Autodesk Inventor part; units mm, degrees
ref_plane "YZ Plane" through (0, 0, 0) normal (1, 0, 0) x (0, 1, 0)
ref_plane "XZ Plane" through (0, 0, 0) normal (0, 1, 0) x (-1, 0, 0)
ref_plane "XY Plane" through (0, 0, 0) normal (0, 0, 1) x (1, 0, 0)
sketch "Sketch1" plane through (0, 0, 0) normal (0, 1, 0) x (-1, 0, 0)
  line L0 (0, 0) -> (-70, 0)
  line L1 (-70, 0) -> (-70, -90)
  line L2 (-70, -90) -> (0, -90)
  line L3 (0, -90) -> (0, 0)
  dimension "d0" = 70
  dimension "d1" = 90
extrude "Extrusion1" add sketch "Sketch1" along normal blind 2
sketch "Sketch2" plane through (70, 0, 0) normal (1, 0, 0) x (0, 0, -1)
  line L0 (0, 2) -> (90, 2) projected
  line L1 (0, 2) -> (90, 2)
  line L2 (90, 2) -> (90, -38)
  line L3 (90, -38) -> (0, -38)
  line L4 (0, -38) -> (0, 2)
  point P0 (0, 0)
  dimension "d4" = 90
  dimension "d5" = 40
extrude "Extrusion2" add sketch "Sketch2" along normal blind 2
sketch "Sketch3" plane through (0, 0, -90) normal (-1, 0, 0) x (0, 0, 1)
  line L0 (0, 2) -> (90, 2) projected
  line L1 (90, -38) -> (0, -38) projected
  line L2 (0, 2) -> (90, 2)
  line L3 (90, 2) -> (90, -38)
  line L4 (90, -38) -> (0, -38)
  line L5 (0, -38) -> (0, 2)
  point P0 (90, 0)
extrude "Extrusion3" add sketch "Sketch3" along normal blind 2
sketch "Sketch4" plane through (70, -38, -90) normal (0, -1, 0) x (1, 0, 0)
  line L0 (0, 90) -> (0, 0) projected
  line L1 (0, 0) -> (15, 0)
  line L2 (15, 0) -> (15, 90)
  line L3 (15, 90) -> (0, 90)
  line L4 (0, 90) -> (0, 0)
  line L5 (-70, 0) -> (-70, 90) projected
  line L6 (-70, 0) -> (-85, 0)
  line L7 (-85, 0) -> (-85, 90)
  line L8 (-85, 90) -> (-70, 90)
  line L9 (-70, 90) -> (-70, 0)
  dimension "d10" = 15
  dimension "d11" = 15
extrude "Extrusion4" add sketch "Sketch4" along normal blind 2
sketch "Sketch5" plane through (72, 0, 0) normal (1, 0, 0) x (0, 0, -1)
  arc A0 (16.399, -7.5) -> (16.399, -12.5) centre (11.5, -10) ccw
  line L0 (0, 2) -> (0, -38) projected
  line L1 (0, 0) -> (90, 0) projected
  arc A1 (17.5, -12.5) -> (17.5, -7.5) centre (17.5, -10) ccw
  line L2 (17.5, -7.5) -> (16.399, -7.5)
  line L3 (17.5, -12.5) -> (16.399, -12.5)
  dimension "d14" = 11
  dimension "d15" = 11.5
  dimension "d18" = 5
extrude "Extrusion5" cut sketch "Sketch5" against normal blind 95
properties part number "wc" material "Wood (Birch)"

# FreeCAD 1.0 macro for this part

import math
import FreeCAD as App
import Part
import Sketcher

V = App.Vector
Q = App.Units.Quantity


def add_polygon(sketch, points):
    """Adds a closed chain of lines whose ends are joined by coincident constraints."""
    first, n = sketch.GeometryCount, len(points)
    for a, b in zip(points, points[1:] + points[:1]):
        sketch.addGeometry(Part.LineSegment(App.Vector(*a, 0), App.Vector(*b, 0)), False)
    for i in range(n):
        sketch.addConstraint(Sketcher.Constraint("Coincident", first + i, 2, first + (i + 1) % n, 1))

doc = App.newDocument("Part")
body = doc.addObject("PartDesign::Body", "Body")

# Sketch on XZ plane
sketch1 = body.newObject("Sketcher::SketchObject", "Sketch")
sketch1.AttachmentSupport = (doc.getObject("XZ_Plane"), [""])
sketch1.MapMode = "FlatFace"
add_polygon(sketch1, [(0, -90), (0, 0), (70, 0), (70, -90)])  # lines 0-3
sketch1.addConstraint([
    Sketcher.Constraint("Vertical", 0),
    Sketcher.Constraint("Horizontal", 1),
    Sketcher.Constraint("Vertical", 2),
    Sketcher.Constraint("Horizontal", 3),
    Sketcher.Constraint("Coincident", 0, 2, -1, 1),
    Sketcher.Constraint("DistanceX", 1, 1, 1, 2, Q("70 mm")),
    Sketcher.Constraint("DistanceY", 0, 1, 0, 2, Q("90 mm")),
])
pad1 = body.newObject("PartDesign::Pad", "Pad")
pad1.Profile = sketch1
pad1.Length = 2
pad1.Reversed = True

# Sketch on YZ plane
sketch2 = body.newObject("Sketcher::SketchObject", "Sketch001")
sketch2.AttachmentSupport = (doc.getObject("YZ_Plane"), [""])
sketch2.MapMode = "FlatFace"
sketch2.AttachmentOffset = App.Placement(V(0, 0, 70), App.Rotation())
add_polygon(sketch2, [(2, -90), (2, 0), (-38, 0), (-38, -90)])  # lines 0-3
sketch2.addConstraint([
    Sketcher.Constraint("Vertical", 0),
    Sketcher.Constraint("Horizontal", 1),
    Sketcher.Constraint("Vertical", 2),
    Sketcher.Constraint("Horizontal", 3),
    Sketcher.Constraint("PointOnObject", 0, 2, -1),
    Sketcher.Constraint("DistanceX", 1, 2, 1, 1, Q("40 mm")),
    Sketcher.Constraint("DistanceY", 0, 1, 0, 2, Q("90 mm")),
    Sketcher.Constraint("DistanceX", -1, 1, 0, 2, Q("2 mm")),
])
pad2 = body.newObject("PartDesign::Pad", "Pad001")
pad2.Profile = sketch2
pad2.Length = 2

# Sketch on YZ plane
sketch3 = body.newObject("Sketcher::SketchObject", "Sketch002")
sketch3.AttachmentSupport = (doc.getObject("YZ_Plane"), [""])
sketch3.MapMode = "FlatFace"
add_polygon(sketch3, [(2, 0), (2, -90), (-38, -90), (-38, 0)])  # lines 0-3
sketch3.addConstraint([
    Sketcher.Constraint("Vertical", 0),
    Sketcher.Constraint("Horizontal", 1),
    Sketcher.Constraint("Vertical", 2),
    Sketcher.Constraint("Horizontal", 3),
    Sketcher.Constraint("PointOnObject", 2, 2, -1),
    Sketcher.Constraint("DistanceX", 1, 2, 1, 1, Q("40 mm")),
    Sketcher.Constraint("DistanceY", 0, 2, 0, 1, Q("90 mm")),
    Sketcher.Constraint("DistanceX", -1, 1, 0, 2, Q("2 mm")),
])
pad3 = body.newObject("PartDesign::Pad", "Pad002")
pad3.Profile = sketch3
pad3.Length = 2
pad3.Reversed = True

# Sketch on XZ plane
sketch4 = body.newObject("Sketcher::SketchObject", "Sketch003")
sketch4.AttachmentSupport = (doc.getObject("XZ_Plane"), [""])
sketch4.MapMode = "FlatFace"
sketch4.AttachmentOffset = App.Placement(V(0, 0, 38), App.Rotation())
add_polygon(sketch4, [(85, 0), (70, 0), (70, -90), (85, -90)])  # lines 0-3
add_polygon(sketch4, [(-15, -90), (0, -90), (0, 0), (-15, 0)])  # lines 4-7
sketch4.addConstraint([
    Sketcher.Constraint("Horizontal", 0),
    Sketcher.Constraint("Vertical", 1),
    Sketcher.Constraint("Horizontal", 2),
    Sketcher.Constraint("Vertical", 3),
    Sketcher.Constraint("Horizontal", 4),
    Sketcher.Constraint("Vertical", 5),
    Sketcher.Constraint("Horizontal", 6),
    Sketcher.Constraint("Vertical", 7),
    Sketcher.Constraint("Coincident", 5, 2, -1, 1),
    Sketcher.Constraint("PointOnObject", 0, 2, -1),
    Sketcher.Constraint("Horizontal", 2, 2, 4, 2),
    Sketcher.Constraint("Equal", 2, 4),
    Sketcher.Constraint("DistanceX", 0, 2, 0, 1, Q("15 mm")),
    Sketcher.Constraint("DistanceY", 1, 2, 1, 1, Q("90 mm")),
    Sketcher.Constraint("DistanceX", -1, 1, 0, 2, Q("70 mm")),
])
pad4 = body.newObject("PartDesign::Pad", "Pad003")
pad4.Profile = sketch4
pad4.Length = 2

# Sketch on YZ plane
sketch5 = body.newObject("Sketcher::SketchObject", "Sketch004")
sketch5.AttachmentSupport = (doc.getObject("YZ_Plane"), [""])
sketch5.MapMode = "FlatFace"
sketch5.AttachmentOffset = App.Placement(V(0, 0, 72), App.Rotation())
sketch5.addGeometry([
    Part.LineSegment(V(-7.5, -17.5, 0), V(-7.5, -16.4, 0)),
    Part.ArcOfCircle(Part.Circle(V(-10, -11.5, 0), V(0, 0, 1), 5.5), math.radians(-63), math.radians(243)),
    Part.LineSegment(V(-12.5, -16.4, 0), V(-12.5, -17.5, 0)),
    Part.ArcOfCircle(Part.Circle(V(-10, -17.5, 0), V(0, 0, 1), 2.5), math.radians(180), math.radians(360)),
], False)
sketch5.addConstraint([
    Sketcher.Constraint("Coincident", 0, 2, 1, 1),
    Sketcher.Constraint("Coincident", 1, 2, 2, 1),
    Sketcher.Constraint("Tangent", 2, 2, 3, 1),
    Sketcher.Constraint("Tangent", 3, 2, 0, 1),
    Sketcher.Constraint("Vertical", 0),
    Sketcher.Constraint("Vertical", 2),
    Sketcher.Constraint("Horizontal", 0, 2, 1, 2),
    Sketcher.Constraint("Radius", 1, Q("5.5 mm")),
    Sketcher.Constraint("Radius", 3, Q("2.5 mm")),
    Sketcher.Constraint("DistanceY", 1, 3, -1, 1, Q("11.5 mm")),
    Sketcher.Constraint("DistanceX", 1, 3, -1, 1, Q("10 mm")),
    Sketcher.Constraint("DistanceY", 3, 3, 1, 3, Q("6 mm")),
])
pocket1 = body.newObject("PartDesign::Pocket", "Pocket")
pocket1.Profile = sketch5
pocket1.Length = 95

doc.recompute()
